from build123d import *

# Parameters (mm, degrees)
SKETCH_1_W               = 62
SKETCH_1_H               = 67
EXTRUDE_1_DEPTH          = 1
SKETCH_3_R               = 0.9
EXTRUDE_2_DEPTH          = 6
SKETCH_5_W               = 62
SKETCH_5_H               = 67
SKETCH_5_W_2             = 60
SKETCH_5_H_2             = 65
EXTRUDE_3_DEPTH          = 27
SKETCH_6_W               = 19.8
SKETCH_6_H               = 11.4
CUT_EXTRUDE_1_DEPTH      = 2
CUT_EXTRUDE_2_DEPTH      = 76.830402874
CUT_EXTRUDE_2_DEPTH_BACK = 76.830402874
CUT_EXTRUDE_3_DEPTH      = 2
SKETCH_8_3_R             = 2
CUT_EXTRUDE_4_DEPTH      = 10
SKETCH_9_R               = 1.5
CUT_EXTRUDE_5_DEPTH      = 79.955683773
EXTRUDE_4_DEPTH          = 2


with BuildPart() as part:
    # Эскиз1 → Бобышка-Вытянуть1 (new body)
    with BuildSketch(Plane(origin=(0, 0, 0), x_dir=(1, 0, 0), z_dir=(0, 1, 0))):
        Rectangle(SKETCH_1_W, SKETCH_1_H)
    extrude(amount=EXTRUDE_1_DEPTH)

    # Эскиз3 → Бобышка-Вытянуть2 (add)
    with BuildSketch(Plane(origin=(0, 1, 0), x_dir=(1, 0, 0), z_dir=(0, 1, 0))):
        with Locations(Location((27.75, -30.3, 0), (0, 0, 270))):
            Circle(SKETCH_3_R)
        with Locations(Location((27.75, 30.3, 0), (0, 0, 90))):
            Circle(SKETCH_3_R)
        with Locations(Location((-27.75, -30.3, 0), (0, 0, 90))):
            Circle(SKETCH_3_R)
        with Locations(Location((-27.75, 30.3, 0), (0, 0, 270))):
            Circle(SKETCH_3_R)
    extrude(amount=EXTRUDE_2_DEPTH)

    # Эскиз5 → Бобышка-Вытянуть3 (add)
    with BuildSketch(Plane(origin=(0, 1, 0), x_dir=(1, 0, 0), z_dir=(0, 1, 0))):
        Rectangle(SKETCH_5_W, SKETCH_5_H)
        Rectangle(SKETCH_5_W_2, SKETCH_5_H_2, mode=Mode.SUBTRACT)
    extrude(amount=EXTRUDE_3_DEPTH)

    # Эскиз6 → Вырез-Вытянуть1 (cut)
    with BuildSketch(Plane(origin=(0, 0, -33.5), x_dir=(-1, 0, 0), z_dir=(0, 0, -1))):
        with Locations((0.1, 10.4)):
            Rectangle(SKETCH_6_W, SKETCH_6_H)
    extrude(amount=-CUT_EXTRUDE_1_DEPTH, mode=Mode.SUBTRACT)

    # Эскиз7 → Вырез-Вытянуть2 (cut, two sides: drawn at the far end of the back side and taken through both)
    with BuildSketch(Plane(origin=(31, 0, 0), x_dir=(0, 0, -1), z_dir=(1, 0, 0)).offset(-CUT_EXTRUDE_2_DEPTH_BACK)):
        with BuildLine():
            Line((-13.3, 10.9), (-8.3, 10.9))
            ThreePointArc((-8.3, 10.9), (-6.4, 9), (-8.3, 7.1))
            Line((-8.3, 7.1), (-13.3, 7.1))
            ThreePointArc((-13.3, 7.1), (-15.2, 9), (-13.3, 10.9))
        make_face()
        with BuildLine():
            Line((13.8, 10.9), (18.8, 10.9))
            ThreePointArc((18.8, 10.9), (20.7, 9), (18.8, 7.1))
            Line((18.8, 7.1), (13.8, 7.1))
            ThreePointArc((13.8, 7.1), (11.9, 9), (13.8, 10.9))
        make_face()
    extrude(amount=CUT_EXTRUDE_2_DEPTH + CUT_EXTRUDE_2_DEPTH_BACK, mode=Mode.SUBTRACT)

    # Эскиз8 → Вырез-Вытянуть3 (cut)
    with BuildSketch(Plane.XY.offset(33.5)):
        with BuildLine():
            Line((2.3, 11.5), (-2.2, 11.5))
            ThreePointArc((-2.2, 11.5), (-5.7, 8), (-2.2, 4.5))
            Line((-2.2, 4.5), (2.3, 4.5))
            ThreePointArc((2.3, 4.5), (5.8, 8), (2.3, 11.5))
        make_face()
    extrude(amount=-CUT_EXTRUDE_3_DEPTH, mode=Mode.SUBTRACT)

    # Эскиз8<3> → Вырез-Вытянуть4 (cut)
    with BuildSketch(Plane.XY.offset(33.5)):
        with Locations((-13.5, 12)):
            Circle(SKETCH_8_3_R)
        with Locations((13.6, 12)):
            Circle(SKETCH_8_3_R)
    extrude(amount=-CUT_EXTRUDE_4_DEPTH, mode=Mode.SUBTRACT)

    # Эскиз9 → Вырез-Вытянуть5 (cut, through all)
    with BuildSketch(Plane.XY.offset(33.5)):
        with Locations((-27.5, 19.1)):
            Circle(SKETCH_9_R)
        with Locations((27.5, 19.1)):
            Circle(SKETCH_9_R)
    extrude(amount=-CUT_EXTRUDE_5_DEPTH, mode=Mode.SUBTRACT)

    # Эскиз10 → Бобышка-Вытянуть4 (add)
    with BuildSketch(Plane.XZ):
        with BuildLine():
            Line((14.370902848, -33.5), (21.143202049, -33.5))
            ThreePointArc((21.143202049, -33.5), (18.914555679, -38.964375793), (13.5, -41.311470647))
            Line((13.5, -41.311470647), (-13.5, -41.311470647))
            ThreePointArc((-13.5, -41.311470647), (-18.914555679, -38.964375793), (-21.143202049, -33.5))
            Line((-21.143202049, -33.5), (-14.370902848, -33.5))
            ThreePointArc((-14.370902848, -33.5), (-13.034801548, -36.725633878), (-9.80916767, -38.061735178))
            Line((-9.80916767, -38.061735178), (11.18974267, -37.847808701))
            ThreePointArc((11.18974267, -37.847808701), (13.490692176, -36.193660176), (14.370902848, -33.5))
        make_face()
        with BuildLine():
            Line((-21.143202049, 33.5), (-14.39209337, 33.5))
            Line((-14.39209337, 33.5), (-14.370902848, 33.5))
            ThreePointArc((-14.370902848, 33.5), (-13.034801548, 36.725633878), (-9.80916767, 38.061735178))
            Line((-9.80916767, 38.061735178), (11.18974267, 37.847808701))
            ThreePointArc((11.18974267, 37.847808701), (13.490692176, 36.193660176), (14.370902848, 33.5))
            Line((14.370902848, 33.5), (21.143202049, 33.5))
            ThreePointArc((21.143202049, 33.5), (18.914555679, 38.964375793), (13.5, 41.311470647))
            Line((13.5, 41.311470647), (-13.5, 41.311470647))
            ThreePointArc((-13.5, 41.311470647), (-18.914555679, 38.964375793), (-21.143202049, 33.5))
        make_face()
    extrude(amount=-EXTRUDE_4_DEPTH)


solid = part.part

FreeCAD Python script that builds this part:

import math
import FreeCAD as App
import Part
import Sketcher
Q = App.Units.Quantity


def add_polygon(sketch, points):
    """Adds a closed chain of lines whose ends are joined by coincident constraints."""
    first, n = sketch.GeometryCount, len(points)
    for a, b in zip(points, points[1:] + points[:1]):
        sketch.addGeometry(Part.LineSegment(App.Vector(*a, 0), App.Vector(*b, 0)), False)
    for i in range(n):
        sketch.addConstraint(Sketcher.Constraint("Coincident", first + i, 2, first + (i + 1) % n, 1))

doc = App.newDocument("Part")
params = doc.addObject("Spreadsheet::Sheet", "Params")
for row, (alias, value) in enumerate([
    ("sketch1_width", "62 mm"),
    ("sketch1_height", "67 mm"),
    ("pad1_length", "1 mm"),
    ("sketch2_diameter", "1.8 mm"),
    ("pad2_length", "6 mm"),
    ("sketch3_width", "62 mm"),
    ("sketch3_width2", "60 mm"),
    ("sketch3_height", "67 mm"),
    ("sketch3_height2", "65 mm"),
    ("pad3_length", "27 mm"),
    ("sketch4_width", "19.8 mm"),
    ("sketch4_height", "11.4 mm"),
    ("pocket1_length", "2 mm"),
    ("sketch5_radius", "1.9 mm"),
    ("sketch5_height", "5 mm"),
    ("sketch6_radius", "3.5 mm"),
    ("sketch6_width", "4.5 mm"),
    ("pocket3_length", "2 mm"),
    ("sketch7_diameter", "4 mm"),
    ("pocket4_length", "10 mm"),
    ("sketch8_diameter", "3 mm"),
    ("sketch9_width", "27 mm"),
    ("sketch9_length", "21 mm"),
    ("pad4_length", "2 mm"),
], start=1):
    params.set(f"A{row}", alias)
    params.set(f"B{row}", "=" + value)
    params.setAlias(f"B{row}", alias)

body = doc.addObject("PartDesign::Body", "Body")

sketch1 = body.newObject("Sketcher::SketchObject", "Sketch")
sketch1.AttachmentSupport = (doc.getObject("XZ_Plane"), [""])
sketch1.MapMode = "FlatFace"
add_polygon(sketch1, [(-31, -34), (-31, 34), (31, 34), (31, -34)])
sketch1.addConstraint([
    Sketcher.Constraint("Vertical", 0),
    Sketcher.Constraint("Horizontal", 1),
    Sketcher.Constraint("Vertical", 2),
    Sketcher.Constraint("Horizontal", 3),
    Sketcher.Constraint("Symmetric", 0, 2, 2, 2, -1, 1),
    Sketcher.Constraint("DistanceX", 1, 1, 1, 2, Q("62 mm")),
    Sketcher.Constraint("DistanceY", 0, 1, 0, 2, Q("67 mm")),
])
sketch1.setExpression("Constraints[9]", "Params.sketch1_width")
sketch1.setExpression("Constraints[10]", "Params.sketch1_height")
pad1 = body.newObject("PartDesign::Pad", "Pad")
pad1.Profile = sketch1
pad1.setExpression("Length", "Params.pad1_length")
pad1.Reversed = True

sketch2 = body.newObject("Sketcher::SketchObject", "Sketch001")
sketch2.AttachmentSupport = (doc.getObject("XZ_Plane"), [""])
sketch2.MapMode = "FlatFace"
sketch2.AttachmentOffset = App.Placement(App.Vector(0, 0, -1), App.Rotation())
sketch2.addGeometry([
    Part.Circle(App.Vector(27.8, 30.3, 0), App.Vector(0, 0, 1), 0.9),
    Part.Circle(App.Vector(27.8, -30.3, 0), App.Vector(0, 0, 1), 0.9),
    Part.Circle(App.Vector(-27.8, 30.3, 0), App.Vector(0, 0, 1), 0.9),
    Part.Circle(App.Vector(-27.8, -30.3, 0), App.Vector(0, 0, 1), 0.9),
], False)
sketch2.addConstraint([
    Sketcher.Constraint("Equal", 0, 1),
    Sketcher.Constraint("Equal", 1, 2),
    Sketcher.Constraint("Equal", 2, 3),
    Sketcher.Constraint("Symmetric", 1, 3, 2, 3, -1, 1),
    Sketcher.Constraint("Symmetric", 0, 3, 3, 3, -1, 1),
    Sketcher.Constraint("Symmetric", 0, 3, 2, 3, -2),
    Sketcher.Constraint("Diameter", 0, Q("1.8 mm")),
    Sketcher.Constraint("DistanceY", -1, 1, 0, 3, Q("30.3 mm")),
    Sketcher.Constraint("DistanceX", 2, 3, 0, 3, Q("55.5 mm")),
])
sketch2.setExpression("Constraints[6]", "Params.sketch2_diameter")
pad2 = body.newObject("PartDesign::Pad", "Pad001")
pad2.Profile = sketch2
pad2.setExpression("Length", "Params.pad2_length")
pad2.Reversed = True

sketch3 = body.newObject("Sketcher::SketchObject", "Sketch002")
sketch3.AttachmentSupport = (doc.getObject("XZ_Plane"), [""])
sketch3.MapMode = "FlatFace"
sketch3.AttachmentOffset = App.Placement(App.Vector(0, 0, -1), App.Rotation())
add_polygon(sketch3, [(-31, -34), (-31, 34), (31, 34), (31, -34)])
add_polygon(sketch3, [(30, 32), (-30, 32), (-30, -32), (30, -32)])
sketch3.addConstraint([
    Sketcher.Constraint("Vertical", 0),
    Sketcher.Constraint("Horizontal", 1),
    Sketcher.Constraint("Vertical", 2),
    Sketcher.Constraint("Horizontal", 3),
    Sketcher.Constraint("Horizontal", 4),
    Sketcher.Constraint("Vertical", 5),
    Sketcher.Constraint("Horizontal", 6),
    Sketcher.Constraint("Vertical", 7),
    Sketcher.Constraint("Symmetric", 0, 2, 2, 2, -1, 1),
    Sketcher.Constraint("Symmetric", 4, 2, 6, 2, -1, 1),
    Sketcher.Constraint("DistanceX", 1, 1, 1, 2, Q("62 mm")),
    Sketcher.Constraint("DistanceX", 4, 2, 4, 1, Q("60 mm")),
    Sketcher.Constraint("DistanceY", 0, 1, 0, 2, Q("67 mm")),
    Sketcher.Constraint("DistanceY", 5, 2, 5, 1, Q("65 mm")),
])
sketch3.setExpression("Constraints[18]", "Params.sketch3_width")
sketch3.setExpression("Constraints[19]", "Params.sketch3_width2")
sketch3.setExpression("Constraints[20]", "Params.sketch3_height")
sketch3.setExpression("Constraints[21]", "Params.sketch3_height2")
pad3 = body.newObject("PartDesign::Pad", "Pad002")
pad3.Profile = sketch3
pad3.setExpression("Length", "Params.pad3_length")
pad3.Reversed = True

sketch4 = body.newObject("Sketcher::SketchObject", "Sketch003")
sketch4.AttachmentSupport = (doc.getObject("XY_Plane"), [""])
sketch4.MapMode = "FlatFace"
sketch4.AttachmentOffset = App.Placement(App.Vector(0, 0, -33.5), App.Rotation())
add_polygon(sketch4, [(10, 16), (10, 5), (-10, 5), (-10, 16)])
sketch4.addConstraint([
    Sketcher.Constraint("Vertical", 0),
    Sketcher.Constraint("Horizontal", 1),
    Sketcher.Constraint("Vertical", 2),
    Sketcher.Constraint("Horizontal", 3),
    Sketcher.Constraint("DistanceX", 1, 2, 1, 1, Q("19.8 mm")),
    Sketcher.Constraint("DistanceY", 0, 2, 0, 1, Q("11.4 mm")),
    Sketcher.Constraint("DistanceX", 1, 2, -1, 1, Q("10 mm")),
    Sketcher.Constraint("DistanceY", -1, 1, 0, 2, Q("4.7 mm")),
])
sketch4.setExpression("Constraints[8]", "Params.sketch4_width")
sketch4.setExpression("Constraints[9]", "Params.sketch4_height")
pocket1 = body.newObject("PartDesign::Pocket", "Pocket")
pocket1.Profile = sketch4
pocket1.setExpression("Length", "Params.pocket1_length")
pocket1.Reversed = True

sketch5 = body.newObject("Sketcher::SketchObject", "Sketch004")
sketch5.AttachmentSupport = (doc.getObject("YZ_Plane"), [""])
sketch5.MapMode = "FlatFace"
sketch5.AttachmentOffset = App.Placement(App.Vector(0, 0, 31), App.Rotation())
sketch5.addGeometry([
    Part.LineSegment(App.Vector(10.9, 8.3, 0), App.Vector(10.9, 13.3, 0)),
    Part.ArcOfCircle(Part.Circle(App.Vector(9, 13.3, 0), App.Vector(0, 0, 1), 1.9), math.radians(0), math.radians(180)),
    Part.LineSegment(App.Vector(7.1, 13.3, 0), App.Vector(7.1, 8.3, 0)),
    Part.ArcOfCircle(Part.Circle(App.Vector(9, 8.3, 0), App.Vector(0, 0, 1), 1.9), math.radians(180), math.radians(360)),
    Part.LineSegment(App.Vector(10.9, -18.8, 0), App.Vector(10.9, -13.8, 0)),
    Part.ArcOfCircle(Part.Circle(App.Vector(9, -13.8, 0), App.Vector(0, 0, 1), 1.9), math.radians(0), math.radians(180)),
    Part.LineSegment(App.Vector(7.1, -13.8, 0), App.Vector(7.1, -18.8, 0)),
    Part.ArcOfCircle(Part.Circle(App.Vector(9, -18.8, 0), App.Vector(0, 0, 1), 1.9), math.radians(180), math.radians(360)),
], False)
sketch5.addConstraint([
    Sketcher.Constraint("Tangent", 0, 2, 1, 1),
    Sketcher.Constraint("Tangent", 1, 2, 2, 1),
    Sketcher.Constraint("Tangent", 2, 2, 3, 1),
    Sketcher.Constraint("Tangent", 3, 2, 0, 1),
    Sketcher.Constraint("Tangent", 4, 2, 5, 1),
    Sketcher.Constraint("Tangent", 5, 2, 6, 1),
    Sketcher.Constraint("Tangent", 6, 2, 7, 1),
    Sketcher.Constraint("Tangent", 7, 2, 4, 1),
    Sketcher.Constraint("Vertical", 0),
    Sketcher.Constraint("Vertical", 2),
    Sketcher.Constraint("Vertical", 4),
    Sketcher.Constraint("Vertical", 6),
    Sketcher.Constraint("Equal", 3, 5),
    Sketcher.Constraint("Vertical", 3, 3, 5, 3),
    Sketcher.Constraint("Equal", 2, 4),
    Sketcher.Constraint("Radius", 1, Q("1.9 mm")),
    Sketcher.Constraint("DistanceY", 0, 1, 0, 2, Q("5 mm")),
    Sketcher.Constraint("DistanceX", -1, 1, 1, 3, Q("9 mm")),
    Sketcher.Constraint("DistanceY", -1, 1, 1, 3, Q("13.3 mm")),
    Sketcher.Constraint("DistanceY", 5, 3, -1, 1, Q("13.8 mm")),
])
sketch5.setExpression("Constraints[15]", "Params.sketch5_radius")
sketch5.setExpression("Constraints[16]", "Params.sketch5_height")
pocket2 = body.newObject("PartDesign::Pocket", "Pocket001")
pocket2.Profile = sketch5
pocket2.Type = "ThroughAll"
pocket2.Midplane = True

sketch6 = body.newObject("Sketcher::SketchObject", "Sketch005")
sketch6.AttachmentSupport = (doc.getObject("XY_Plane"), [""])
sketch6.MapMode = "FlatFace"
sketch6.AttachmentOffset = App.Placement(App.Vector(0, 0, 33.5), App.Rotation())
sketch6.addGeometry([
    Part.LineSegment(App.Vector(2.3, 11.5, 0), App.Vector(-2.2, 11.5, 0)),
    Part.ArcOfCircle(Part.Circle(App.Vector(-2.2, 8, 0), App.Vector(0, 0, 1), 3.5), math.radians(90), math.radians(270)),
    Part.LineSegment(App.Vector(-2.2, 4.5, 0), App.Vector(2.3, 4.5, 0)),
    Part.ArcOfCircle(Part.Circle(App.Vector(2.3, 8, 0), App.Vector(0, 0, 1), 3.5), math.radians(-90), math.radians(90)),
], False)
sketch6.addConstraint([
    Sketcher.Constraint("Tangent", 0, 2, 1, 1),
    Sketcher.Constraint("Tangent", 1, 2, 2, 1),
    Sketcher.Constraint("Tangent", 2, 2, 3, 1),
    Sketcher.Constraint("Tangent", 3, 2, 0, 1),
    Sketcher.Constraint("Horizontal", 0),
    Sketcher.Constraint("Horizontal", 2),
    Sketcher.Constraint("Radius", 1, Q("3.5 mm")),
    Sketcher.Constraint("DistanceX", 0, 2, 0, 1, Q("4.5 mm")),
    Sketcher.Constraint("DistanceY", -1, 1, 1, 3, Q("8 mm")),
    Sketcher.Constraint("DistanceX", 1, 3, -1, 1, Q("2.2 mm")),
])
sketch6.setExpression("Constraints[6]", "Params.sketch6_radius")
sketch6.setExpression("Constraints[7]", "Params.sketch6_width")
pocket3 = body.newObject("PartDesign::Pocket", "Pocket002")
pocket3.Profile = sketch6
pocket3.setExpression("Length", "Params.pocket3_length")

sketch7 = body.newObject("Sketcher::SketchObject", "Sketch006")
sketch7.AttachmentSupport = (doc.getObject("XY_Plane"), [""])
sketch7.MapMode = "FlatFace"
sketch7.AttachmentOffset = App.Placement(App.Vector(0, 0, 33.5), App.Rotation())
sketch7.addGeometry([
    Part.Circle(App.Vector(-13.5, 12, 0), App.Vector(0, 0, 1), 2),
    Part.Circle(App.Vector(13.6, 12, 0), App.Vector(0, 0, 1), 2),
], False)
sketch7.addConstraint([
    Sketcher.Constraint("Equal", 0, 1),
    Sketcher.Constraint("Horizontal", 0, 3, 1, 3),
    Sketcher.Constraint("Diameter", 0, Q("4 mm")),
    Sketcher.Constraint("DistanceY", -1, 1, 0, 3, Q("12 mm")),
    Sketcher.Constraint("DistanceX", 0, 3, -1, 1, Q("13.5 mm")),
    Sketcher.Constraint("DistanceX", -1, 1, 1, 3, Q("13.6 mm")),
])
sketch7.setExpression("Constraints[2]", "Params.sketch7_diameter")
pocket4 = body.newObject("PartDesign::Pocket", "Pocket003")
pocket4.Profile = sketch7
pocket4.setExpression("Length", "Params.pocket4_length")

sketch8 = body.newObject("Sketcher::SketchObject", "Sketch007")
sketch8.AttachmentSupport = (doc.getObject("XY_Plane"), [""])
sketch8.MapMode = "FlatFace"
sketch8.AttachmentOffset = App.Placement(App.Vector(0, 0, 33.5), App.Rotation())
sketch8.addGeometry([
    Part.Circle(App.Vector(-27.5, 19.1, 0), App.Vector(0, 0, 1), 1.5),
    Part.Circle(App.Vector(27.5, 19.1, 0), App.Vector(0, 0, 1), 1.5),
], False)
sketch8.addConstraint([
    Sketcher.Constraint("Equal", 0, 1),
    Sketcher.Constraint("Symmetric", 0, 3, 1, 3, -2),
    Sketcher.Constraint("Diameter", 0, Q("3 mm")),
    Sketcher.Constraint("DistanceX", 0, 3, 1, 3, Q("55 mm")),
    Sketcher.Constraint("DistanceY", -1, 1, 0, 3, Q("19.1 mm")),
])
sketch8.setExpression("Constraints[2]", "Params.sketch8_diameter")
pocket5 = body.newObject("PartDesign::Pocket", "Pocket004")
pocket5.Profile = sketch8
pocket5.Type = "ThroughAll"

sketch9 = body.newObject("Sketcher::SketchObject", "Sketch008")
sketch9.AttachmentSupport = (doc.getObject("XZ_Plane"), [""])
sketch9.MapMode = "FlatFace"
sketch9.addGeometry([
    Part.LineSegment(App.Vector(21.1, -33.5, 0), App.Vector(14.4, -33.5, 0)),
    Part.ArcOfCircle(Part.Circle(App.Vector(9.8, -33.5, 0), App.Vector(0, 0, 1), 4.6), math.radians(-72), math.radians(0)),
    Part.LineSegment(App.Vector(11.2, -37.8, 0), App.Vector(-9.8, -38.1, 0)),
    Part.ArcOfCircle(Part.Circle(App.Vector(-9.8, -33.5, 0), App.Vector(0, 0, 1), 4.6), math.radians(-180), math.radians(-90)),
    Part.LineSegment(App.Vector(-14.4, -33.5, 0), App.Vector(-21.1, -33.5, 0)),
    Part.ArcOfCircle(Part.Circle(App.Vector(-13.3, -33.5, 0), App.Vector(0, 0, 1), 7.8), math.radians(180), math.radians(269)),
    Part.LineSegment(App.Vector(-13.5, -41.3, 0), App.Vector(13.5, -41.3, 0)),
    Part.ArcOfCircle(Part.Circle(App.Vector(13.3, -33.5, 0), App.Vector(0, 0, 1), 7.8), math.radians(-89), math.radians(0)),
    Part.LineSegment(App.Vector(-21.1, 33.5, 0), App.Vector(-14.4, 33.5, 0)),
    Part.ArcOfCircle(Part.Circle(App.Vector(-9.8, 33.5, 0), App.Vector(0, 0, 1), 4.6), math.radians(90), math.radians(180)),
    Part.LineSegment(App.Vector(-9.8, 38.1, 0), App.Vector(11.2, 37.8, 0)),
    Part.ArcOfCircle(Part.Circle(App.Vector(9.8, 33.5, 0), App.Vector(0, 0, 1), 4.6), math.radians(0), math.radians(72)),
    Part.LineSegment(App.Vector(14.4, 33.5, 0), App.Vector(21.1, 33.5, 0)),
    Part.ArcOfCircle(Part.Circle(App.Vector(13.3, 33.5, 0), App.Vector(0, 0, 1), 7.8), math.radians(0), math.radians(89)),
    Part.LineSegment(App.Vector(13.5, 41.3, 0), App.Vector(-13.5, 41.3, 0)),
    Part.ArcOfCircle(Part.Circle(App.Vector(-13.3, 33.5, 0), App.Vector(0, 0, 1), 7.8), math.radians(91), math.radians(180)),
], False)
sketch9.addConstraint([
    Sketcher.Constraint("Coincident", 0, 2, 1, 2),
    Sketcher.Constraint("Coincident", 1, 1, 2, 1),
    Sketcher.Constraint("Coincident", 2, 2, 3, 2),
    Sketcher.Constraint("Coincident", 3, 1, 4, 1),
    Sketcher.Constraint("Coincident", 4, 2, 5, 1),
    Sketcher.Constraint("Coincident", 5, 2, 6, 1),
    Sketcher.Constraint("Coincident", 6, 2, 7, 1),
    Sketcher.Constraint("Coincident", 7, 2, 0, 1),
    Sketcher.Constraint("Coincident", 8, 2, 9, 2),
    Sketcher.Constraint("Coincident", 9, 1, 10, 1),
    Sketcher.Constraint("Coincident", 10, 2, 11, 2),
    Sketcher.Constraint("Coincident", 11, 1, 12, 1),
    Sketcher.Constraint("Coincident", 12, 2, 13, 1),
    Sketcher.Constraint("Coincident", 13, 2, 14, 1),
    Sketcher.Constraint("Coincident", 14, 2, 15, 1),
    Sketcher.Constraint("Coincident", 15, 2, 8, 1),
    Sketcher.Constraint("Horizontal", 0),
    Sketcher.Constraint("Horizontal", 4),
    Sketcher.Constraint("Horizontal", 6),
    Sketcher.Constraint("Horizontal", 8),
    Sketcher.Constraint("Horizontal", 12),
    Sketcher.Constraint("Horizontal", 14),
    Sketcher.Constraint("Equal", 1, 3),
    Sketcher.Constraint("Equal", 5, 7),
    Sketcher.Constraint("Equal", 3, 9),
    Sketcher.Constraint("Equal", 9, 11),
    Sketcher.Constraint("Equal", 7, 13),
    Sketcher.Constraint("Equal", 13, 15),
    Sketcher.Constraint("Symmetric", 1, 3, 9, 3, -1, 1),
    Sketcher.Constraint("Symmetric", 3, 3, 11, 3, -1, 1),
    Sketcher.Constraint("Symmetric", 5, 3, 13, 3, -1, 1),
    Sketcher.Constraint("Symmetric", 7, 3, 15, 3, -1, 1),
    Sketcher.Constraint("Symmetric", 1, 3, 3, 3, -2),
    Sketcher.Constraint("Symmetric", 5, 3, 7, 3, -2),
    Sketcher.Constraint("Horizontal", 3, 3, 5, 3),
    Sketcher.Constraint("Horizontal", 7, 3, 0, 2),
    Sketcher.Constraint("Horizontal", 0, 2, 3, 1),
    Sketcher.Constraint("Horizontal", 15, 3, 8, 2),
    Sketcher.Constraint("Horizontal", 8, 2, 11, 1),
    Sketcher.Constraint("Vertical", 9, 3, 2, 2),
    Sketcher.Constraint("Vertical", 2, 2, 9, 1),
    Sketcher.Constraint("Vertical", 1, 1, 10, 2),
    Sketcher.Constraint("Vertical", 6, 2, 13, 2),
    Sketcher.Constraint("DistanceX", 6, 1, 6, 2, Q("27 mm")),
    Sketcher.Constraint("Distance", 2, Q("21 mm")),
    Sketcher.Constraint("DistanceY", 3, 3, 9, 3, Q("67 mm")),
    Sketcher.Constraint("DistanceX", 0, 2, 0, 1, Q("6.772299 mm")),
    Sketcher.Constraint("Radius", 1, Q("4.561735 mm")),
    Sketcher.Constraint("Radius", 5, Q("7.813323 mm")),
    Sketcher.Constraint("DistanceX", 5, 3, -1, 1, Q("13.329879 mm")),
])
sketch9.setExpression("Constraints[43]", "Params.sketch9_width")
sketch9.setExpression("Constraints[44]", "Params.sketch9_length")
pad4 = body.newObject("PartDesign::Pad", "Pad003")
pad4.Profile = sketch9
pad4.setExpression("Length", "Params.pad4_length")
pad4.Reversed = True

doc.recompute()
